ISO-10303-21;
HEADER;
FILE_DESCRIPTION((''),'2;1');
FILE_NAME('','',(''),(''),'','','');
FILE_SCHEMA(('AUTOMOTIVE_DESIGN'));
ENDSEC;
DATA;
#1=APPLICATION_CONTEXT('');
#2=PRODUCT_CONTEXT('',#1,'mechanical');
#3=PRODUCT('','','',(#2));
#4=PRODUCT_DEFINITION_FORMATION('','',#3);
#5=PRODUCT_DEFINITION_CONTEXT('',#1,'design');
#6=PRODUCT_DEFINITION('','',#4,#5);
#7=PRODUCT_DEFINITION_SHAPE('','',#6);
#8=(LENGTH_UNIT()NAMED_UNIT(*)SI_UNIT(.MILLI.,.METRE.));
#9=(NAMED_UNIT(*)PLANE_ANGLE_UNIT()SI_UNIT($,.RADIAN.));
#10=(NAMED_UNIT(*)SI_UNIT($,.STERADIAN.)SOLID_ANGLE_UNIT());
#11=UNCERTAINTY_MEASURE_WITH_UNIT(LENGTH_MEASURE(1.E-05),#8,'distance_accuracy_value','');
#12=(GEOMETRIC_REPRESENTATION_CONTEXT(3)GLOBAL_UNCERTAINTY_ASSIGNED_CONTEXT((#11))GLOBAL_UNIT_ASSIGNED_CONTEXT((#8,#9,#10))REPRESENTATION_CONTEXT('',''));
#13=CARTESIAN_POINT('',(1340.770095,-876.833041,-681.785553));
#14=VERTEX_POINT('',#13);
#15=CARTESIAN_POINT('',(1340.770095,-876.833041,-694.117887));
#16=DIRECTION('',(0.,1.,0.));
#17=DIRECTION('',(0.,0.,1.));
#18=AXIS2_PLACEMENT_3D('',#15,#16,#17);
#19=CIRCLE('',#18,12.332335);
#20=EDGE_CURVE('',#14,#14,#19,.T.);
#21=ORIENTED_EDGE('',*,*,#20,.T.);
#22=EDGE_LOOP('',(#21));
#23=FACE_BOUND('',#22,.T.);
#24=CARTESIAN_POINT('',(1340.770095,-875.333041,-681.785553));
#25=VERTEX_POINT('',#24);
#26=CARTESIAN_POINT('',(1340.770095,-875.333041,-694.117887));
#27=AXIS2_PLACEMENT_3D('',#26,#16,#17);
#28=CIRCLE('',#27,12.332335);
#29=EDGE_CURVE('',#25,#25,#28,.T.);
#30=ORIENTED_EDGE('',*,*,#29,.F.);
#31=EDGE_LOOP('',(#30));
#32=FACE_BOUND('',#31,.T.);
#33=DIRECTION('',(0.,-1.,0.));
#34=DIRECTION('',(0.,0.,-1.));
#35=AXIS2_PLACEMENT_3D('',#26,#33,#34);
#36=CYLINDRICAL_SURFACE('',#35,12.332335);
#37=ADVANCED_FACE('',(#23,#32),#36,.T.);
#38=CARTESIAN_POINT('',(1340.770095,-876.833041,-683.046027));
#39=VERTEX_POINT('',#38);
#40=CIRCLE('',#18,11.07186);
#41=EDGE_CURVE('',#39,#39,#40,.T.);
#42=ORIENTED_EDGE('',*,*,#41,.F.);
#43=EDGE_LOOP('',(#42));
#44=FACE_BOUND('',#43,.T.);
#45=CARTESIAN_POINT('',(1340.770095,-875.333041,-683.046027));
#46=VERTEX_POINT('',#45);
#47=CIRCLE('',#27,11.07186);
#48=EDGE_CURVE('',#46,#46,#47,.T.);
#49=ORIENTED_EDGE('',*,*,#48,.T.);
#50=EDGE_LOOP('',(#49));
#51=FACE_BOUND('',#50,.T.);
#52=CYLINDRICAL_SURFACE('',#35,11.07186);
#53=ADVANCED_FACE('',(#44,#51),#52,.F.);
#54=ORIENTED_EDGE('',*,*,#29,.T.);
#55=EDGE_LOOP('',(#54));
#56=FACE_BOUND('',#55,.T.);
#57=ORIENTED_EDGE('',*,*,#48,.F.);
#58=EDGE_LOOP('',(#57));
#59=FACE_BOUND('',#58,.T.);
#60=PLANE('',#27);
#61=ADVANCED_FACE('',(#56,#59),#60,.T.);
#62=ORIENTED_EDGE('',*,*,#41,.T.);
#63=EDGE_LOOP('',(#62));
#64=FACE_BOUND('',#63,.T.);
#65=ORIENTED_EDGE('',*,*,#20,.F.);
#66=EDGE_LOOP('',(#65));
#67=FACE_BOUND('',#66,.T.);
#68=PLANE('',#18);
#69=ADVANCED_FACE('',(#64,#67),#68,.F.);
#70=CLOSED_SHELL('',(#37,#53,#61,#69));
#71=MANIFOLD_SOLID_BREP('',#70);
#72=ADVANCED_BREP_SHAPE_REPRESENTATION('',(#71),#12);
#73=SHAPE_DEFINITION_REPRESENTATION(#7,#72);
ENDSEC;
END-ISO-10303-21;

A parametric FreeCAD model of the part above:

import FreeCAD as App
import Part
import Sketcher
Q = App.Units.Quantity

doc = App.newDocument("Part")
params = doc.addObject("Spreadsheet::Sheet", "Params")
for row, (alias, value) in enumerate([
    ("pad1_length", "1.5 mm"),
], start=1):
    params.set(f"A{row}", alias)
    params.set(f"B{row}", "=" + value)
    params.setAlias(f"B{row}", alias)

body = doc.addObject("PartDesign::Body", "Body")

# Sketch on XZ plane
sketch1 = doc.addObject("Sketcher::SketchObject", "Sketch")
body.addObject(sketch1)
sketch1.AttachmentSupport = (doc.XZ_Plane, [""])
sketch1.MapMode = "FlatFace"
sketch1.AttachmentOffset = App.Placement(App.Vector(0, 0, 876.833041), App.Rotation())
sketch1.addGeometry(Part.Circle(App.Vector(1340.770095, -694.117887, 0), App.Vector(0, 0, 1), 12.332335), False)
sketch1.addGeometry(Part.Circle(App.Vector(1340.770095, -694.117887, 0), App.Vector(0, 0, 1), 11.07186), False)
sketch1.addConstraint(Sketcher.Constraint("Coincident", 1, 3, 0, 3))
sketch1.addConstraint(Sketcher.Constraint("Diameter", 0, Q("24.664669 mm")))
sketch1.addConstraint(Sketcher.Constraint("Diameter", 1, Q("22.143719 mm")))
sketch1.addConstraint(Sketcher.Constraint("DistanceX", -1, 1, 0, 3, Q("1340.770095 mm")))
sketch1.addConstraint(Sketcher.Constraint("DistanceY", 0, 3, -1, 1, Q("694.117887 mm")))
pad1 = doc.addObject("PartDesign::Pad", "Pad")
body.addObject(pad1)
pad1.Profile = sketch1
pad1.setExpression("Length", "Params.pad1_length")
pad1.Reversed = True

doc.recompute()
